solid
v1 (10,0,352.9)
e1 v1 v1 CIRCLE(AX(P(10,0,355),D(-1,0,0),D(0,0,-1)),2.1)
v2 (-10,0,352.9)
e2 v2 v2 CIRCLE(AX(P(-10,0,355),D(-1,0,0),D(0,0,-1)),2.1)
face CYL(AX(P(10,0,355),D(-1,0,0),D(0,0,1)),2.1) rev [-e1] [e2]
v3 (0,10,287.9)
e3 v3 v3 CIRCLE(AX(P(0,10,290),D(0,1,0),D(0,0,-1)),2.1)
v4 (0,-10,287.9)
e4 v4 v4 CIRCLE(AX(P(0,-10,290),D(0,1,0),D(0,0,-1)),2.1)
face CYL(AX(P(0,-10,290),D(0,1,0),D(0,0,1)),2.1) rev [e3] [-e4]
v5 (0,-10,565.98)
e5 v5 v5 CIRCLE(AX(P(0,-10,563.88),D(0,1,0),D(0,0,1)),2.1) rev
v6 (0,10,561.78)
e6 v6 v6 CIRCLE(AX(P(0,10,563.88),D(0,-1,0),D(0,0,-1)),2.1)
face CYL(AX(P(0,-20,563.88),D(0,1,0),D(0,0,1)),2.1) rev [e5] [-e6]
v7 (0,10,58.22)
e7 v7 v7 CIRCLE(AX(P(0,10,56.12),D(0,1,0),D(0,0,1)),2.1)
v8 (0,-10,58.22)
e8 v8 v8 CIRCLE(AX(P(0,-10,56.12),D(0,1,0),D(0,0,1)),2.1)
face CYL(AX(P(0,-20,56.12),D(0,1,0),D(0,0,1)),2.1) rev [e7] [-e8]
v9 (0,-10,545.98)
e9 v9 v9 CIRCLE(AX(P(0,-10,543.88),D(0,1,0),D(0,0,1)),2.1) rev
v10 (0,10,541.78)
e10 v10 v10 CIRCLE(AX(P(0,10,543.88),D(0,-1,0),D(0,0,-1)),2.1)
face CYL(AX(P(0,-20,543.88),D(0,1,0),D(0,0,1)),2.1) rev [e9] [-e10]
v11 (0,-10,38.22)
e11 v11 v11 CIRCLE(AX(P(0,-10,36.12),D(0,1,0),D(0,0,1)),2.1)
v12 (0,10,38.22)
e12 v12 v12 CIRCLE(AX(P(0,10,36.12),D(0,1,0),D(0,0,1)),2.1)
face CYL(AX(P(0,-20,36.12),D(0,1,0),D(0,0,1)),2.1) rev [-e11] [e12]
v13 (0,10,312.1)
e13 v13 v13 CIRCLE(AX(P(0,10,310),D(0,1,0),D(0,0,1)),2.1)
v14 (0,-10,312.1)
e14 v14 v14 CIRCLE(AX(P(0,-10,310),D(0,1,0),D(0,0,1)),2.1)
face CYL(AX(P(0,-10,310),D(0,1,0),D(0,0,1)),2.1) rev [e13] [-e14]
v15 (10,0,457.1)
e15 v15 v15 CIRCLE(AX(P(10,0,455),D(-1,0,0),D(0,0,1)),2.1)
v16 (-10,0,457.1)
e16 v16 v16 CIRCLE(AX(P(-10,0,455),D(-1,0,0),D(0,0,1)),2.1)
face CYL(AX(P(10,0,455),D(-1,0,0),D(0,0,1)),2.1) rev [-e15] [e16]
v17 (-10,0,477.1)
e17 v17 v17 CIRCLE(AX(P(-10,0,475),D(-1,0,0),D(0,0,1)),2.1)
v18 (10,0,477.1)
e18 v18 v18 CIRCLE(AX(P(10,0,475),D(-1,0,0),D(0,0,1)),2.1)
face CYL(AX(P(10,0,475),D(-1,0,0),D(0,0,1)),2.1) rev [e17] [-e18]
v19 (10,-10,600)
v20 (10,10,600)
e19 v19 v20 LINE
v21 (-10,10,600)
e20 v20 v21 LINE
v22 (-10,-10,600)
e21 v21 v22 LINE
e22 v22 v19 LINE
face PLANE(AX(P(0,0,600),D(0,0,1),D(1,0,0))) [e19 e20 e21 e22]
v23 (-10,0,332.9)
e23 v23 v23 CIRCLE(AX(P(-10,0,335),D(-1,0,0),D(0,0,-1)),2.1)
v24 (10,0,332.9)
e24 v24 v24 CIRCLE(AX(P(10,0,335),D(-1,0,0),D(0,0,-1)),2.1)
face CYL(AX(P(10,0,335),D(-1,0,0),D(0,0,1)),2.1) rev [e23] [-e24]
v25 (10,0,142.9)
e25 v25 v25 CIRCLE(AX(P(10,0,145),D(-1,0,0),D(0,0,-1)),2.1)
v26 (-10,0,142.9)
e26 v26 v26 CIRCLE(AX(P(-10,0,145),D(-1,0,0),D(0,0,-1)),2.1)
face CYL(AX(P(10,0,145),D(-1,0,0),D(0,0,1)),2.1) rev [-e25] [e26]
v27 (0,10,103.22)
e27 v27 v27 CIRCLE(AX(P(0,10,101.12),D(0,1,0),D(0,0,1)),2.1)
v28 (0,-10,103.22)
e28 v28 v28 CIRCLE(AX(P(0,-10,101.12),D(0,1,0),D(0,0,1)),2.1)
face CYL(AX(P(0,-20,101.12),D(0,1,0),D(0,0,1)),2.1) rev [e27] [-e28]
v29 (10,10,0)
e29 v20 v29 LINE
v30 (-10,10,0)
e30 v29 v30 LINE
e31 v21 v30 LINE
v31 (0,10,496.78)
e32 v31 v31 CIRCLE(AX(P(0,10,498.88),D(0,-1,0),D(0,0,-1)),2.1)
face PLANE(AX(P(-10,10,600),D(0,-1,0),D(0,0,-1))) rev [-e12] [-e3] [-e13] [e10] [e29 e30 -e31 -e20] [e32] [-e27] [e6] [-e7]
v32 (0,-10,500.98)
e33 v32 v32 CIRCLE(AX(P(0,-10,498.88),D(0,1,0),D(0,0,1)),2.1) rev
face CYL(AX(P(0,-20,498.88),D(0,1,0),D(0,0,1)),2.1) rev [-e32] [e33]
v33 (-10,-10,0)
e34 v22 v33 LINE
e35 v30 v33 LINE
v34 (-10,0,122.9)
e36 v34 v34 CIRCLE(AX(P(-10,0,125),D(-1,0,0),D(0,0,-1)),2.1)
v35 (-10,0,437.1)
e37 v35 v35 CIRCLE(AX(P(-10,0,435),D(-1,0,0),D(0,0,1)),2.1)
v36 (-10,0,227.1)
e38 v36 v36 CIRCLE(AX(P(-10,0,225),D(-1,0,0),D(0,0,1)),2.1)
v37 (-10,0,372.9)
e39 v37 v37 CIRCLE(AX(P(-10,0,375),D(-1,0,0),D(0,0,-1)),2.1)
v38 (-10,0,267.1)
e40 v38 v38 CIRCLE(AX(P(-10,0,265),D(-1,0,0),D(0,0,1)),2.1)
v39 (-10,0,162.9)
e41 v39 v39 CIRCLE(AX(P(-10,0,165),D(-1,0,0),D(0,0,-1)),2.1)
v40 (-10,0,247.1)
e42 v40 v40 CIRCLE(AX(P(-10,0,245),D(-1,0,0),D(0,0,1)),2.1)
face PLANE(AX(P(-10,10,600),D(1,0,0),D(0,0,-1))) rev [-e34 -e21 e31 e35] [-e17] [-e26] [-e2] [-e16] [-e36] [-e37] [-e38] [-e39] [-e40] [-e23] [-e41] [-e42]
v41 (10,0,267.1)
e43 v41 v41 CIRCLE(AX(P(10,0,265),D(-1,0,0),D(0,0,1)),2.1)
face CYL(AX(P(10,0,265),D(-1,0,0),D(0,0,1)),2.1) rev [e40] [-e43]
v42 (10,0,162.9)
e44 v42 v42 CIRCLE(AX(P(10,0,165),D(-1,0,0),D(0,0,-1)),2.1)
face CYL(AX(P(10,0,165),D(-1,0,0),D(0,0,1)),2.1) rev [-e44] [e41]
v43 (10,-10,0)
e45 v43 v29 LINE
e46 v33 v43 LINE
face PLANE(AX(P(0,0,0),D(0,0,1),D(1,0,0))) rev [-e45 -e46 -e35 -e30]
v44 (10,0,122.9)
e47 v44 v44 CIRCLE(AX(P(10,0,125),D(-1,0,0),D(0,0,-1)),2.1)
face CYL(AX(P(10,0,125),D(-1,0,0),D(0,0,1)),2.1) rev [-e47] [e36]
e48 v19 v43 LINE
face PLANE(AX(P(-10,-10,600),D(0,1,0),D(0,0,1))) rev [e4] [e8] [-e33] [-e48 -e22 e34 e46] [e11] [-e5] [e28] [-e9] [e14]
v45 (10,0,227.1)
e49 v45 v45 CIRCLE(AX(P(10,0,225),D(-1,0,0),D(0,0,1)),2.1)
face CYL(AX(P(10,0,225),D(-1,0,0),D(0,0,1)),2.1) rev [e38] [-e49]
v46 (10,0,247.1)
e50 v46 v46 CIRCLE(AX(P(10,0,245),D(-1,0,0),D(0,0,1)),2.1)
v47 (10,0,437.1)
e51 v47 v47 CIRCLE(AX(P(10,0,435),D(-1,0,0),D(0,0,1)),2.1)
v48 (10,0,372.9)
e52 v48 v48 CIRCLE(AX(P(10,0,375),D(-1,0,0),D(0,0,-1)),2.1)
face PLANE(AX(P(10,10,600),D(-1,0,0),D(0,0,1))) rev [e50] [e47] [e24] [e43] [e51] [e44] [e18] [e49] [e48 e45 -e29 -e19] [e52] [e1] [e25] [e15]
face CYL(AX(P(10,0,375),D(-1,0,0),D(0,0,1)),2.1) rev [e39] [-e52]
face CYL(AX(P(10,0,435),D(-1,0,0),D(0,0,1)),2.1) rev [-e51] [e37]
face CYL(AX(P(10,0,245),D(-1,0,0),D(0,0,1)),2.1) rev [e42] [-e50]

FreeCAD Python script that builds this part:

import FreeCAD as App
import Part
import Sketcher


def add_polygon(sketch, points):
    """Adds a closed chain of lines whose ends are joined by coincident constraints."""
    first, n = sketch.GeometryCount, len(points)
    for a, b in zip(points, points[1:] + points[:1]):
        sketch.addGeometry(Part.LineSegment(App.Vector(*a, 0), App.Vector(*b, 0)), False)
    for i in range(n):
        sketch.addConstraint(Sketcher.Constraint("Coincident", first + i, 2, first + (i + 1) % n, 1))

doc = App.newDocument("Part")
body = doc.addObject("PartDesign::Body", "Body")

sketch1 = body.newObject("Sketcher::SketchObject", "Sketch")
sketch1.AttachmentSupport = (doc.getObject("XY_Plane"), [""])
sketch1.MapMode = "FlatFace"
add_polygon(sketch1, [(-10, 10), (-10, -10), (10, -10), (10, 10)])
sketch1.addConstraint([
    Sketcher.Constraint("Vertical", 0),
    Sketcher.Constraint("Horizontal", 1),
    Sketcher.Constraint("Vertical", 2),
    Sketcher.Constraint("Horizontal", 3),
    Sketcher.Constraint("Symmetric", 0, 2, 2, 2, -1, 1),
    Sketcher.Constraint("Equal", 3, 0),
    Sketcher.Constraint("DistanceX", 1, 1, 1, 2, 20.0),
])
pad1 = body.newObject("PartDesign::Pad", "Pad")
pad1.Profile = sketch1
pad1.Length = 600

sketch2 = body.newObject("Sketcher::SketchObject", "Sketch001")
sketch2.AttachmentSupport = (doc.getObject("XZ_Plane"), [""])
sketch2.MapMode = "FlatFace"
sketch2.AttachmentOffset = App.Placement(App.Vector(0, 0, -10), App.Rotation())
sketch2.addGeometry([
    Part.Circle(App.Vector(0, 36.12, 0), App.Vector(0, 0, 1), 2.1),
    Part.Circle(App.Vector(0, 56.12, 0), App.Vector(0, 0, 1), 2.1),
    Part.Circle(App.Vector(0, 101.12, 0), App.Vector(0, 0, 1), 2.1),
], False)
sketch2.addConstraint([
    Sketcher.Constraint("Equal", 0, 1),
    Sketcher.Constraint("Equal", 1, 2),
    Sketcher.Constraint("PointOnObject", 0, 3, -2),
    Sketcher.Constraint("PointOnObject", 1, 3, -2),
    Sketcher.Constraint("PointOnObject", 2, 3, -2),
    Sketcher.Constraint("Diameter", 0, 4.2),
    Sketcher.Constraint("DistanceY", 0, 3, 1, 3, 20.0),
    Sketcher.Constraint("DistanceY", 1, 3, 2, 3, 45.0),
    Sketcher.Constraint("DistanceY", -1, 1, 0, 3, 36.12),
])
pocket1 = body.newObject("PartDesign::Pocket", "Pocket")
pocket1.Profile = sketch2
pocket1.Length = 30
pocket1.Reversed = True
doc.recompute()

datumplane = body.newObject("PartDesign::Plane", "DatumPlane")
datumplane.AttachmentSupport = (doc.getObject("XY_Plane"), [""])
datumplane.MapMode = "FlatFace"
datumplane.AttachmentOffset = App.Placement(App.Vector(0, 0, 300), App.Rotation())
mirrored = body.newObject("PartDesign::Mirrored", "Mirrored")
mirrored.Originals = [pocket1]
mirrored.MirrorPlane = (datumplane, [""])
body.Tip = mirrored

sketch3 = body.newObject("Sketcher::SketchObject", "Sketch002")
sketch3.AttachmentSupport = (doc.getObject("YZ_Plane"), [""])
sketch3.MapMode = "FlatFace"
sketch3.AttachmentOffset = App.Placement(App.Vector(0, 0, -10), App.Rotation())
sketch3.addGeometry([
    Part.Circle(App.Vector(0, 225, 0), App.Vector(0, 0, 1), 2.1),
    Part.Circle(App.Vector(0, 245, 0), App.Vector(0, 0, 1), 2.1),
    Part.Circle(App.Vector(0, 265, 0), App.Vector(0, 0, 1), 2.1),
    Part.Circle(App.Vector(0, 375, 0), App.Vector(0, 0, 1), 2.1),
    Part.Circle(App.Vector(0, 355, 0), App.Vector(0, 0, 1), 2.1),
    Part.Circle(App.Vector(0, 335, 0), App.Vector(0, 0, 1), 2.1),
    Part.Circle(App.Vector(0, 435, 0), App.Vector(0, 0, 1), 2.1),
    Part.Circle(App.Vector(0, 455, 0), App.Vector(0, 0, 1), 2.1),
    Part.Circle(App.Vector(0, 475, 0), App.Vector(0, 0, 1), 2.1),
    Part.Circle(App.Vector(0, 125, 0), App.Vector(0, 0, 1), 2.1),
    Part.Circle(App.Vector(0, 145, 0), App.Vector(0, 0, 1), 2.1),
    Part.Circle(App.Vector(0, 165, 0), App.Vector(0, 0, 1), 2.1),
], False)
sketch3.addConstraint([
    Sketcher.Constraint("Equal", 0, 1),
    Sketcher.Constraint("Equal", 1, 2),
    Sketcher.Constraint("Equal", 2, 3),
    Sketcher.Constraint("Equal", 3, 4),
    Sketcher.Constraint("Equal", 4, 5),
    Sketcher.Constraint("Equal", 5, 6),
    Sketcher.Constraint("Equal", 6, 7),
    Sketcher.Constraint("Equal", 7, 8),
    Sketcher.Constraint("Equal", 8, 9),
    Sketcher.Constraint("Equal", 9, 10),
    Sketcher.Constraint("Equal", 10, 11),
    Sketcher.Constraint("PointOnObject", 0, 3, -2),
    Sketcher.Constraint("PointOnObject", 1, 3, -2),
    Sketcher.Constraint("PointOnObject", 2, 3, -2),
    Sketcher.Constraint("PointOnObject", 3, 3, -2),
    Sketcher.Constraint("PointOnObject", 4, 3, -2),
    Sketcher.Constraint("PointOnObject", 5, 3, -2),
    Sketcher.Constraint("PointOnObject", 6, 3, -2),
    Sketcher.Constraint("PointOnObject", 7, 3, -2),
    Sketcher.Constraint("PointOnObject", 8, 3, -2),
    Sketcher.Constraint("PointOnObject", 9, 3, -2),
    Sketcher.Constraint("PointOnObject", 10, 3, -2),
    Sketcher.Constraint("PointOnObject", 11, 3, -2),
    Sketcher.Constraint("Diameter", 0, 4.2),
    Sketcher.Constraint("DistanceY", -1, 1, 0, 3, 225.0),
    Sketcher.Constraint("DistanceY", -1, 1, 1, 3, 245.0),
    Sketcher.Constraint("DistanceY", -1, 1, 2, 3, 265.0),
    Sketcher.Constraint("DistanceY", -1, 1, 3, 3, 375.0),
    Sketcher.Constraint("DistanceY", -1, 1, 4, 3, 355.0),
    Sketcher.Constraint("DistanceY", -1, 1, 5, 3, 335.0),
    Sketcher.Constraint("DistanceY", -1, 1, 6, 3, 435.0),
    Sketcher.Constraint("DistanceY", -1, 1, 7, 3, 455.0),
    Sketcher.Constraint("DistanceY", -1, 1, 8, 3, 475.0),
    Sketcher.Constraint("DistanceY", -1, 1, 9, 3, 125.0),
    Sketcher.Constraint("DistanceY", -1, 1, 10, 3, 145.0),
    Sketcher.Constraint("DistanceY", -1, 1, 11, 3, 165.0),
])
pocket2 = body.newObject("PartDesign::Pocket", "Pocket001")
pocket2.Profile = sketch3
pocket2.Type = "ThroughAll"
pocket2.Reversed = True

sketch4 = body.newObject("Sketcher::SketchObject", "Sketch003")
sketch4.AttachmentSupport = (doc.getObject("XZ_Plane"), [""])
sketch4.MapMode = "FlatFace"
sketch4.AttachmentOffset = App.Placement(App.Vector(0, 0, -10), App.Rotation())
sketch4.addGeometry([
    Part.Circle(App.Vector(0, 310, 0), App.Vector(0, 0, 1), 2.1),
    Part.Circle(App.Vector(0, 290, 0), App.Vector(0, 0, 1), 2.1),
], False)
sketch4.addConstraint([
    Sketcher.Constraint("Equal", 0, 1),
    Sketcher.Constraint("PointOnObject", 0, 3, -2),
    Sketcher.Constraint("PointOnObject", 1, 3, -2),
    Sketcher.Constraint("Diameter", 0, 4.2),
    Sketcher.Constraint("DistanceY", -1, 1, 0, 3, 310.0),
    Sketcher.Constraint("DistanceY", -1, 1, 1, 3, 290.0),
])
pocket3 = body.newObject("PartDesign::Pocket", "Pocket002")
pocket3.Profile = sketch4
pocket3.Type = "ThroughAll"
pocket3.Reversed = True

doc.recompute()
